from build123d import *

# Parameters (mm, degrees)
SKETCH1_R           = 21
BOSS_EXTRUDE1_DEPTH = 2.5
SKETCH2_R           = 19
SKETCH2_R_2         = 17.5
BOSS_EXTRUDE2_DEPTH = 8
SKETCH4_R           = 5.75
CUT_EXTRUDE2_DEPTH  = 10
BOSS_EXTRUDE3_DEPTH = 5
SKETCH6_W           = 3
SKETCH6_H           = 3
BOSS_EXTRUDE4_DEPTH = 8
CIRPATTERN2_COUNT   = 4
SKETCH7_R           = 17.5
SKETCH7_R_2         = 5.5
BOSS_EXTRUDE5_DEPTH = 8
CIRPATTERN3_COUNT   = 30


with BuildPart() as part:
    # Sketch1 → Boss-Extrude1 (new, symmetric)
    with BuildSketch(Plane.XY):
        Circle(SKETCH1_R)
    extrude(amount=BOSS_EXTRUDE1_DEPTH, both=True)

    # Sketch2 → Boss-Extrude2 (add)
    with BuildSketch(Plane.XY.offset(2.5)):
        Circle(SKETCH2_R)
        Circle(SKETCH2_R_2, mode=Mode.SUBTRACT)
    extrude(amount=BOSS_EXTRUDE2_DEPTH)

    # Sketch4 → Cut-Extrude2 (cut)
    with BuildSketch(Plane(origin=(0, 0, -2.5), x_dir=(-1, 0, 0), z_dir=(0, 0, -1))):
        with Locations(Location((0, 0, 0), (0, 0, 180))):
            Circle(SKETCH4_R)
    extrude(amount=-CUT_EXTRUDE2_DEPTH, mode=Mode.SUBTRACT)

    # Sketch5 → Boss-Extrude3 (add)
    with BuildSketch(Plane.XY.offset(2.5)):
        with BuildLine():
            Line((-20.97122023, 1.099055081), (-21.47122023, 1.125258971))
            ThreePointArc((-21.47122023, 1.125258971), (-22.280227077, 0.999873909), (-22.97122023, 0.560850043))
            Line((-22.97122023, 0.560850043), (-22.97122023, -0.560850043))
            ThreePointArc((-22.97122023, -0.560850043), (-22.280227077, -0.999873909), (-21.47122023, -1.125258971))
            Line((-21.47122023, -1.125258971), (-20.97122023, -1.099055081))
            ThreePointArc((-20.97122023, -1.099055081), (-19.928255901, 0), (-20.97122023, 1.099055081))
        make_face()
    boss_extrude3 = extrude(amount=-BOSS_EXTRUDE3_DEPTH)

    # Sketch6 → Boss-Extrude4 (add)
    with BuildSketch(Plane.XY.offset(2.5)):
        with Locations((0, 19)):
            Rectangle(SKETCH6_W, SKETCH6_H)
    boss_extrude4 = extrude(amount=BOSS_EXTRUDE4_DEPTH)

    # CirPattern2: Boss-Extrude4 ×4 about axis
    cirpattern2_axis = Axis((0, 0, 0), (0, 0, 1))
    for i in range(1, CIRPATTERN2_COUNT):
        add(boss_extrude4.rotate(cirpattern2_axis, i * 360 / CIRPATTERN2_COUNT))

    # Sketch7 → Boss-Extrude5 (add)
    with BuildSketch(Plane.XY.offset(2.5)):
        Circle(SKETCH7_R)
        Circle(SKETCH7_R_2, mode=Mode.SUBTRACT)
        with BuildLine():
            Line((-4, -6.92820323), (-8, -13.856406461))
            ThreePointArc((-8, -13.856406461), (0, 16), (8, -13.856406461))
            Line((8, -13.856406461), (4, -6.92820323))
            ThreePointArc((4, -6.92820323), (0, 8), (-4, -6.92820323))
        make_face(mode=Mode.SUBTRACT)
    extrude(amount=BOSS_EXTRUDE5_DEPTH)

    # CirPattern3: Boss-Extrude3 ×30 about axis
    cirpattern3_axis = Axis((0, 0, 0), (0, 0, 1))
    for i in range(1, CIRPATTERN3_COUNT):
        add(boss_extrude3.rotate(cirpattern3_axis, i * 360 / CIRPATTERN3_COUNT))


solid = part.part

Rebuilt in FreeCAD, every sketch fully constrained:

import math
import FreeCAD as App
import Part
import Sketcher
Q = App.Units.Quantity


def add_polygon(sketch, points):
    """Adds a closed chain of lines whose ends are joined by coincident constraints."""
    first, n = sketch.GeometryCount, len(points)
    for a, b in zip(points, points[1:] + points[:1]):
        sketch.addGeometry(Part.LineSegment(App.Vector(*a, 0), App.Vector(*b, 0)), False)
    for i in range(n):
        sketch.addConstraint(Sketcher.Constraint("Coincident", first + i, 2, first + (i + 1) % n, 1))

doc = App.newDocument("Part")
body = doc.addObject("PartDesign::Body", "Body")

# Sketch on XY plane
sketch1 = body.newObject("Sketcher::SketchObject", "Sketch")
sketch1.AttachmentSupport = (doc.getObject("XY_Plane"), [""])
sketch1.MapMode = "FlatFace"
sketch1.addGeometry(Part.Circle(App.Vector(0, 0, 0), App.Vector(0, 0, 1), 21), False)
sketch1.addConstraint([
    Sketcher.Constraint("Coincident", 0, 3, -1, 1),
    Sketcher.Constraint("Diameter", 0, Q("42 mm")),
])
pad1 = body.newObject("PartDesign::Pad", "Pad")
pad1.Profile = sketch1
pad1.Length = 5
pad1.Midplane = True

# Sketch on XY plane
sketch2 = body.newObject("Sketcher::SketchObject", "Sketch001")
sketch2.AttachmentSupport = (doc.getObject("XY_Plane"), [""])
sketch2.MapMode = "FlatFace"
sketch2.AttachmentOffset = App.Placement(App.Vector(0, 0, 2.5), App.Rotation())
sketch2.addGeometry([
    Part.Circle(App.Vector(0, 0, 0), App.Vector(0, 0, 1), 19),
    Part.Circle(App.Vector(0, 0, 0), App.Vector(0, 0, 1), 18),
], False)
sketch2.addConstraint([
    Sketcher.Constraint("Coincident", 0, 3, -1, 1),
    Sketcher.Constraint("Coincident", 1, 3, -1, 1),
    Sketcher.Constraint("Diameter", 0, Q("38 mm")),
    Sketcher.Constraint("Diameter", 1, Q("35 mm")),
])
pad2 = body.newObject("PartDesign::Pad", "Pad001")
pad2.Profile = sketch2
pad2.Length = 8

# Sketch on XY plane
sketch3 = body.newObject("Sketcher::SketchObject", "Sketch002")
sketch3.AttachmentSupport = (doc.getObject("XY_Plane"), [""])
sketch3.MapMode = "FlatFace"
sketch3.AttachmentOffset = App.Placement(App.Vector(0, 0, -2.5), App.Rotation())
sketch3.addGeometry(Part.Circle(App.Vector(0, 0, 0), App.Vector(0, 0, 1), 6), False)
sketch3.addConstraint([
    Sketcher.Constraint("Coincident", 0, 3, -1, 1),
    Sketcher.Constraint("Diameter", 0, Q("11.5 mm")),
])
pocket1 = body.newObject("PartDesign::Pocket", "Pocket")
pocket1.Profile = sketch3
pocket1.Length = 10
pocket1.Reversed = True

# Sketch on XY plane
sketch4 = body.newObject("Sketcher::SketchObject", "Sketch003")
sketch4.AttachmentSupport = (doc.getObject("XY_Plane"), [""])
sketch4.MapMode = "FlatFace"
sketch4.AttachmentOffset = App.Placement(App.Vector(0, 0, 2.5), App.Rotation())
sketch4.addGeometry([
    Part.LineSegment(App.Vector(-21, 1.1, 0), App.Vector(-21.5, 1.1, 0)),  # 0
    Part.ArcOfCircle(Part.Circle(App.Vector(-21.6, -0.9, 0), App.Vector(0, 0, 1), 2), math.radians(87), math.radians(134)),  # 1
    Part.LineSegment(App.Vector(-23, 0.6, 0), App.Vector(-23, -0.6, 0)),  # 2
    Part.ArcOfCircle(Part.Circle(App.Vector(-21.6, 0.9, 0), App.Vector(0, 0, 1), 2), math.radians(-134), math.radians(-87)),  # 3
    Part.LineSegment(App.Vector(-21.5, -1.1, 0), App.Vector(-21, -1.1, 0)),  # 4
    Part.ArcOfCircle(Part.Circle(App.Vector(-21, 0, 0), App.Vector(0, 0, 1), 1.1), math.radians(-87), math.radians(87)),  # 5
], False)
sketch4.addConstraint([
    Sketcher.Constraint("Tangent", 0, 2, 1, 1),
    Sketcher.Constraint("Coincident", 1, 2, 2, 1),
    Sketcher.Constraint("Coincident", 2, 2, 3, 1),
    Sketcher.Constraint("Tangent", 3, 2, 4, 1),
    Sketcher.Constraint("Tangent", 4, 2, 5, 1),
    Sketcher.Constraint("Tangent", 5, 2, 0, 1),
    Sketcher.Constraint("Vertical", 2),
    Sketcher.Constraint("Equal", 1, 3),
    Sketcher.Constraint("Symmetric", 1, 3, 3, 3, -1),
    Sketcher.Constraint("PointOnObject", 5, 3, -1),
    Sketcher.Constraint("Radius", 1, Q("2 mm")),
    Sketcher.Constraint("Angle", 0, Q("177 deg")),
    Sketcher.Constraint("DistanceX", 2, 2, 4, 2, Q("2 mm")),
    Sketcher.Constraint("DistanceX", 1, 2, 0, 2, Q("1.5 mm")),
    Sketcher.Constraint("DistanceY", 2, 2, 2, 1, Q("1.1217 mm")),
    Sketcher.Constraint("DistanceX", 5, 3, -1, 1, Q("21.028819 mm")),
])
pad3 = body.newObject("PartDesign::Pad", "Pad002")
pad3.Profile = sketch4
pad3.Length = 5
pad3.Reversed = True

# Sketch on XY plane
sketch5 = body.newObject("Sketcher::SketchObject", "Sketch004")
sketch5.AttachmentSupport = (doc.getObject("XY_Plane"), [""])
sketch5.MapMode = "FlatFace"
sketch5.AttachmentOffset = App.Placement(App.Vector(0, 0, 2.5), App.Rotation())
add_polygon(sketch5, [(-1.5, 20.5), (-1.5, 17.5), (1.5, 17.5), (1.5, 20.5)])  # lines 0-3
sketch5.addConstraint([
    Sketcher.Constraint("Vertical", 0),
    Sketcher.Constraint("Horizontal", 1),
    Sketcher.Constraint("Vertical", 2),
    Sketcher.Constraint("Horizontal", 3),
    Sketcher.Constraint("Equal", 3, 0),
    Sketcher.Constraint("DistanceX", 1, 1, 1, 2, Q("3 mm")),
    Sketcher.Constraint("DistanceX", 0, 2, -1, 1, Q("1.5 mm")),
    Sketcher.Constraint("DistanceY", -1, 1, 0, 2, Q("17.5 mm")),
])
pad4 = body.newObject("PartDesign::Pad", "Pad003")
pad4.Profile = sketch5
pad4.Length = 8
doc.recompute()

polarpattern = body.newObject("PartDesign::PolarPattern", "PolarPattern")
polarpattern.Originals = [pad4]
polarpattern.Axis = (doc.getObject("Z_Axis"), [""])
polarpattern.Angle = 360
polarpattern.Occurrences = 4
body.Tip = polarpattern

# Sketch on XY plane
sketch6 = body.newObject("Sketcher::SketchObject", "Sketch005")
sketch6.AttachmentSupport = (doc.getObject("XY_Plane"), [""])
sketch6.MapMode = "FlatFace"
sketch6.AttachmentOffset = App.Placement(App.Vector(0, 0, 2.5), App.Rotation())
sketch6.addGeometry([
    Part.Circle(App.Vector(0, 0, 0), App.Vector(0, 0, 1), 18),  # 0
    Part.Circle(App.Vector(0, 0, 0), App.Vector(0, 0, 1), 6),  # 1
    Part.ArcOfCircle(Part.Circle(App.Vector(0, 0, 0), App.Vector(0, 0, 1), 8), math.radians(-60), math.radians(240)),  # 2
    Part.LineSegment(App.Vector(-4, -7, 0), App.Vector(-8, -14, 0)),  # 3
    Part.ArcOfCircle(Part.Circle(App.Vector(0, 0, 0), App.Vector(0, 0, 1), 16), math.radians(-60), math.radians(240)),  # 4
    Part.LineSegment(App.Vector(8, -14, 0), App.Vector(4, -7, 0)),  # 5
], False)
sketch6.addConstraint([
    Sketcher.Constraint("Coincident", 2, 2, 3, 1),
    Sketcher.Constraint("Coincident", 3, 2, 4, 2),
    Sketcher.Constraint("Coincident", 4, 1, 5, 1),
    Sketcher.Constraint("Coincident", 5, 2, 2, 1),
    Sketcher.Constraint("Coincident", 0, 3, -1, 1),
    Sketcher.Constraint("Coincident", 1, 3, -1, 1),
    Sketcher.Constraint("Coincident", 2, 3, -1, 1),
    Sketcher.Constraint("Coincident", 4, 3, -1, 1),
    Sketcher.Constraint("Horizontal", 3, 2, 4, 1),
    Sketcher.Constraint("Horizontal", 2, 2, 5, 2),
    Sketcher.Constraint("Diameter", 0, Q("35 mm")),
    Sketcher.Constraint("Diameter", 1, Q("11 mm")),
    Sketcher.Constraint("Radius", 2, Q("8 mm")),
    Sketcher.Constraint("Radius", 4, Q("16 mm")),
    Sketcher.Constraint("Angle", 3, Q("-120 deg")),
    Sketcher.Constraint("DistanceX", 2, 2, -1, 1, Q("4 mm")),
])
pad5 = body.newObject("PartDesign::Pad", "Pad004")
pad5.Profile = sketch6
pad5.Length = 8
doc.recompute()

polarpattern2 = body.newObject("PartDesign::PolarPattern", "PolarPattern001")
polarpattern2.Originals = [pad3]
polarpattern2.Axis = (doc.getObject("Z_Axis"), [""])
polarpattern2.Angle = 360
polarpattern2.Occurrences = 30
body.Tip = polarpattern2

doc.recompute()
